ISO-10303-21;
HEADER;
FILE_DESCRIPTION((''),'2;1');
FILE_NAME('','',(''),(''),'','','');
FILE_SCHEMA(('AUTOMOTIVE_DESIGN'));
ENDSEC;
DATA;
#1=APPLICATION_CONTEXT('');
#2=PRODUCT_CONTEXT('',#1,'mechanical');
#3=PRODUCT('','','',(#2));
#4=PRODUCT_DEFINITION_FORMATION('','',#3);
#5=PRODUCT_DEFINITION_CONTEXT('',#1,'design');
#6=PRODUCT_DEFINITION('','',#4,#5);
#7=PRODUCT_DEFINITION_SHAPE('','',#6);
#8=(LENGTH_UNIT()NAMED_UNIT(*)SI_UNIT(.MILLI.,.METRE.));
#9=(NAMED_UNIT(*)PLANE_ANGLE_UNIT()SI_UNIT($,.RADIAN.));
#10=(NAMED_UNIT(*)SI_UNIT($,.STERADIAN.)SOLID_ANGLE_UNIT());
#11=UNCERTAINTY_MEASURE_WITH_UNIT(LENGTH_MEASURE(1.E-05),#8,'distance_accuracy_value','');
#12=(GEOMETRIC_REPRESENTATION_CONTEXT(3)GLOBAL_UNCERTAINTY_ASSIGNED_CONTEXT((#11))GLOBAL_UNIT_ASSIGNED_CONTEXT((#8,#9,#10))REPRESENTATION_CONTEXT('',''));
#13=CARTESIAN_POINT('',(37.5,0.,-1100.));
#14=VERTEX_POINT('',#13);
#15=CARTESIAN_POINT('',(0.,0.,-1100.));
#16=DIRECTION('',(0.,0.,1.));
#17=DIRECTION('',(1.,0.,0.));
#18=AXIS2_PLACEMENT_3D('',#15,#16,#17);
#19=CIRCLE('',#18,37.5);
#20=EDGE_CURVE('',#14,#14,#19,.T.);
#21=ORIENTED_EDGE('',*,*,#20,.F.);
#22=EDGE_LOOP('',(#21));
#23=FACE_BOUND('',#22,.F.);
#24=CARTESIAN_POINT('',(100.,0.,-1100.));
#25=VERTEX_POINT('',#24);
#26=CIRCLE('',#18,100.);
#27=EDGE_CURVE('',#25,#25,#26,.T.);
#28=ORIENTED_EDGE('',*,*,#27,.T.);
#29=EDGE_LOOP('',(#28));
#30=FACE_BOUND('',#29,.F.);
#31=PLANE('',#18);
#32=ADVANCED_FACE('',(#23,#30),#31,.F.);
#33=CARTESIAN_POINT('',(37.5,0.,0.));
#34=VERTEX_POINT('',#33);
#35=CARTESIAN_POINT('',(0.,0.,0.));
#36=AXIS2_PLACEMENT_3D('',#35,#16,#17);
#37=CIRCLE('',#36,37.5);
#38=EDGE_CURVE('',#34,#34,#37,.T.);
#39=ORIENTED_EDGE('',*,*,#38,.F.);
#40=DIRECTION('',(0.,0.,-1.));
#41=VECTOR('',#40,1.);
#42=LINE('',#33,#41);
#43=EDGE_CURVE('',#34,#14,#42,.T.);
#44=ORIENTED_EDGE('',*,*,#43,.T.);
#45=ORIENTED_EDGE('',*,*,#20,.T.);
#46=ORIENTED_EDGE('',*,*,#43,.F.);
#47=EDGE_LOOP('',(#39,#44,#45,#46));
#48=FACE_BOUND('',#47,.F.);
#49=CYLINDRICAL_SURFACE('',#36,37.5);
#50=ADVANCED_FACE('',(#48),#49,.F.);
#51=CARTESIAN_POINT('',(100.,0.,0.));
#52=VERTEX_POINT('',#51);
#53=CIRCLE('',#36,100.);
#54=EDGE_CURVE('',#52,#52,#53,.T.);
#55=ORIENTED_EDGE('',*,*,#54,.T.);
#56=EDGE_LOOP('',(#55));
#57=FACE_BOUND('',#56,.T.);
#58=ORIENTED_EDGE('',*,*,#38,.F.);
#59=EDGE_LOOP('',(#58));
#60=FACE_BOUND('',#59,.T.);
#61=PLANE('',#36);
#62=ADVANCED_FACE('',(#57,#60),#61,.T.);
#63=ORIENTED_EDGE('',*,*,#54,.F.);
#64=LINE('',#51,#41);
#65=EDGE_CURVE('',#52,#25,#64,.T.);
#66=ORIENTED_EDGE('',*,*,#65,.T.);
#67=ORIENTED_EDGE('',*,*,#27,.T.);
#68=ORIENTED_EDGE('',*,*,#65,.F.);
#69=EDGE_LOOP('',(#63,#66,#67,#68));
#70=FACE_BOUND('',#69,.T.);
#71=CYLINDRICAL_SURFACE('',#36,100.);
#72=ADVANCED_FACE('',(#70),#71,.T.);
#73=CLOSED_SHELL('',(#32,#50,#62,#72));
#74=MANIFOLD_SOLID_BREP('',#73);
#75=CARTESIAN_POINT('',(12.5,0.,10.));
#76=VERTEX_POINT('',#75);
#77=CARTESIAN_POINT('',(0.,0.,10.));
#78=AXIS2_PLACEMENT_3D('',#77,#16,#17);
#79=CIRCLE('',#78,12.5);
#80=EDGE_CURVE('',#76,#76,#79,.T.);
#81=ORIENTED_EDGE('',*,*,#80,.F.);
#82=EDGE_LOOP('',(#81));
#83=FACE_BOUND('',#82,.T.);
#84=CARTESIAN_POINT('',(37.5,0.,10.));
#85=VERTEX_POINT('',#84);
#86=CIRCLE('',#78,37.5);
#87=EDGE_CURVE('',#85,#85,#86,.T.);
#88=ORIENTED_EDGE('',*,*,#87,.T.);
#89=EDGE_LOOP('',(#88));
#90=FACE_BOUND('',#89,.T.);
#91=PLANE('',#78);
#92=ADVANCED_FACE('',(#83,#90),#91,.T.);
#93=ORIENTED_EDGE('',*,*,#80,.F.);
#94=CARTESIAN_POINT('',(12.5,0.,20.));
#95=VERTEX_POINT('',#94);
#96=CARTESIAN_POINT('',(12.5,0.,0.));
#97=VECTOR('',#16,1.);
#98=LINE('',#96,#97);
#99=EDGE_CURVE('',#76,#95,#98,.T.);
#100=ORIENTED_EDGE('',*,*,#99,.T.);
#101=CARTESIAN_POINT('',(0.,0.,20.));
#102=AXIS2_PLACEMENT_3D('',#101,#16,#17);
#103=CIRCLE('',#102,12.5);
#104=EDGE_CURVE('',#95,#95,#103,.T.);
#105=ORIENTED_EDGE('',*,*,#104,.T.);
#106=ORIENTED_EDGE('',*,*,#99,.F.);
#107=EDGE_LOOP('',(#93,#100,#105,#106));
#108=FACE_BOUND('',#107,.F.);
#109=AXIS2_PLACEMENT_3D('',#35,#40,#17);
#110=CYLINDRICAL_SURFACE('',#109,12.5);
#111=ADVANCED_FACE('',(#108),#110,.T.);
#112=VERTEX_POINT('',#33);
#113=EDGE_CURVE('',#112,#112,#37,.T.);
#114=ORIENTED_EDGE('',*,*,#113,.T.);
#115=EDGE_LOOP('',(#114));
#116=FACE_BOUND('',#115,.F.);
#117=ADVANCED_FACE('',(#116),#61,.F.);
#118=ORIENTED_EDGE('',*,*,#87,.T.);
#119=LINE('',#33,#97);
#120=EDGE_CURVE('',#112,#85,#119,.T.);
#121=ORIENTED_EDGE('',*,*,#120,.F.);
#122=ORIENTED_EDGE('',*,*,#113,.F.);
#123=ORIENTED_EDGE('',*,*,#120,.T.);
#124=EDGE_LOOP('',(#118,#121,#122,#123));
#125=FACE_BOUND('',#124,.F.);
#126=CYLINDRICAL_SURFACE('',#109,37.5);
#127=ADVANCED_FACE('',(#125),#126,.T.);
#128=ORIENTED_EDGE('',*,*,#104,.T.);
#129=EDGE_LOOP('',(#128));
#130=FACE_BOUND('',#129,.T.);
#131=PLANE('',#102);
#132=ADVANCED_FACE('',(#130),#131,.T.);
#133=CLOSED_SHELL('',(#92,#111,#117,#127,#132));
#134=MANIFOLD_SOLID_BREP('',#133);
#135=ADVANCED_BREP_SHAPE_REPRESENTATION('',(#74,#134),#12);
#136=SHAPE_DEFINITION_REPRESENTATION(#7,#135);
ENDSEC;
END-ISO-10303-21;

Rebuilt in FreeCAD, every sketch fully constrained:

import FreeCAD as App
import Part
import Sketcher

V = App.Vector

doc = App.newDocument("Part")
body = doc.addObject("PartDesign::Body", "Body")
body.AllowCompound = True

# Sketch on XY plane
sketch1 = doc.addObject("Sketcher::SketchObject", "Sketch")
body.addObject(sketch1)
sketch1.AttachmentSupport = (doc.XY_Plane, [""])
sketch1.MapMode = "FlatFace"
sketch1.addGeometry([
    Part.Circle(V(0, 0, 0), V(0, 0, 1), 100),
    Part.Circle(V(0, 0, 0), V(0, 0, 1), 37.5),
], False)
sketch1.addConstraint([
    Sketcher.Constraint("Coincident", 0, 3, -1, 1),
    Sketcher.Constraint("Coincident", 1, 3, -1, 1),
    Sketcher.Constraint("Diameter", 0, 200.0),
    Sketcher.Constraint("Diameter", 1, 75.0),
])
pad1 = doc.addObject("PartDesign::Pad", "Pad")
body.addObject(pad1)
pad1.Profile = sketch1
pad1.Length = 1100
pad1.Reversed = True

# Sketch on XY plane
sketch2 = doc.addObject("Sketcher::SketchObject", "Sketch001")
body.addObject(sketch2)
sketch2.AttachmentSupport = (doc.XY_Plane, [""])
sketch2.MapMode = "FlatFace"
sketch2.addGeometry([
    Part.Circle(V(0, 0, 0), V(0, 0, 1), 37.5),
    Part.Circle(V(0, 0, 0), V(0, 0, 1), 12.5),
], False)
sketch2.addConstraint([
    Sketcher.Constraint("Coincident", 0, 3, -1, 1),
    Sketcher.Constraint("Coincident", 1, 3, -1, 1),
    Sketcher.Constraint("Diameter", 0, 75.0),
    Sketcher.Constraint("Diameter", 1, 25.0),
])
pad2 = doc.addObject("PartDesign::Pad", "Pad001")
body.addObject(pad2)
pad2.Profile = sketch2
pad2.Length = 10

# Sketch on XY plane
sketch3 = doc.addObject("Sketcher::SketchObject", "Sketch002")
body.addObject(sketch3)
sketch3.AttachmentSupport = (doc.XY_Plane, [""])
sketch3.MapMode = "FlatFace"
sketch3.addGeometry(Part.Circle(V(0, 0, 0), V(0, 0, 1), 12.5), False)
sketch3.addConstraint([
    Sketcher.Constraint("Coincident", 0, 3, -1, 1),
    Sketcher.Constraint("Diameter", 0, 25.0),
])
pad3 = doc.addObject("PartDesign::Pad", "Pad002")
body.addObject(pad3)
pad3.Profile = sketch3
pad3.Length = 20

doc.recompute()
